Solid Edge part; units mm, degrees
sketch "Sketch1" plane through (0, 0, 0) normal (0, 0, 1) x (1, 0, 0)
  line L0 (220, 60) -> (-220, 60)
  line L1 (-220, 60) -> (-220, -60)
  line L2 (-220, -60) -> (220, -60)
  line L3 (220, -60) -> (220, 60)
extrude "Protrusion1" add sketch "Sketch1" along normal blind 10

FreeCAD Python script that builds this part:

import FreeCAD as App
import Part
import Sketcher
Q = App.Units.Quantity


def add_polygon(sketch, points):
    """Adds a closed chain of lines whose ends are joined by coincident constraints."""
    first, n = sketch.GeometryCount, len(points)
    for a, b in zip(points, points[1:] + points[:1]):
        sketch.addGeometry(Part.LineSegment(App.Vector(*a, 0), App.Vector(*b, 0)), False)
    for i in range(n):
        sketch.addConstraint(Sketcher.Constraint("Coincident", first + i, 2, first + (i + 1) % n, 1))

doc = App.newDocument("Part")
body = doc.addObject("PartDesign::Body", "Body")

sketch1 = doc.addObject("Sketcher::SketchObject", "Sketch")
body.addObject(sketch1)
sketch1.AttachmentSupport = (doc.XY_Plane, [""])
sketch1.MapMode = "FlatFace"
add_polygon(sketch1, [(220, -60), (220, 60), (-220, 60), (-220, -60)])
sketch1.addConstraint([
    Sketcher.Constraint("Vertical", 0),
    Sketcher.Constraint("Horizontal", 1),
    Sketcher.Constraint("Vertical", 2),
    Sketcher.Constraint("Horizontal", 3),
    Sketcher.Constraint("Symmetric", 0, 2, 2, 2, -1, 1),
    Sketcher.Constraint("DistanceX", 1, 2, 1, 1, Q("440 mm")),
    Sketcher.Constraint("DistanceY", 0, 1, 0, 2, Q("120 mm")),
])
pad1 = doc.addObject("PartDesign::Pad", "Pad")
body.addObject(pad1)
pad1.Profile = sketch1
pad1.Length = 10

doc.recompute()
